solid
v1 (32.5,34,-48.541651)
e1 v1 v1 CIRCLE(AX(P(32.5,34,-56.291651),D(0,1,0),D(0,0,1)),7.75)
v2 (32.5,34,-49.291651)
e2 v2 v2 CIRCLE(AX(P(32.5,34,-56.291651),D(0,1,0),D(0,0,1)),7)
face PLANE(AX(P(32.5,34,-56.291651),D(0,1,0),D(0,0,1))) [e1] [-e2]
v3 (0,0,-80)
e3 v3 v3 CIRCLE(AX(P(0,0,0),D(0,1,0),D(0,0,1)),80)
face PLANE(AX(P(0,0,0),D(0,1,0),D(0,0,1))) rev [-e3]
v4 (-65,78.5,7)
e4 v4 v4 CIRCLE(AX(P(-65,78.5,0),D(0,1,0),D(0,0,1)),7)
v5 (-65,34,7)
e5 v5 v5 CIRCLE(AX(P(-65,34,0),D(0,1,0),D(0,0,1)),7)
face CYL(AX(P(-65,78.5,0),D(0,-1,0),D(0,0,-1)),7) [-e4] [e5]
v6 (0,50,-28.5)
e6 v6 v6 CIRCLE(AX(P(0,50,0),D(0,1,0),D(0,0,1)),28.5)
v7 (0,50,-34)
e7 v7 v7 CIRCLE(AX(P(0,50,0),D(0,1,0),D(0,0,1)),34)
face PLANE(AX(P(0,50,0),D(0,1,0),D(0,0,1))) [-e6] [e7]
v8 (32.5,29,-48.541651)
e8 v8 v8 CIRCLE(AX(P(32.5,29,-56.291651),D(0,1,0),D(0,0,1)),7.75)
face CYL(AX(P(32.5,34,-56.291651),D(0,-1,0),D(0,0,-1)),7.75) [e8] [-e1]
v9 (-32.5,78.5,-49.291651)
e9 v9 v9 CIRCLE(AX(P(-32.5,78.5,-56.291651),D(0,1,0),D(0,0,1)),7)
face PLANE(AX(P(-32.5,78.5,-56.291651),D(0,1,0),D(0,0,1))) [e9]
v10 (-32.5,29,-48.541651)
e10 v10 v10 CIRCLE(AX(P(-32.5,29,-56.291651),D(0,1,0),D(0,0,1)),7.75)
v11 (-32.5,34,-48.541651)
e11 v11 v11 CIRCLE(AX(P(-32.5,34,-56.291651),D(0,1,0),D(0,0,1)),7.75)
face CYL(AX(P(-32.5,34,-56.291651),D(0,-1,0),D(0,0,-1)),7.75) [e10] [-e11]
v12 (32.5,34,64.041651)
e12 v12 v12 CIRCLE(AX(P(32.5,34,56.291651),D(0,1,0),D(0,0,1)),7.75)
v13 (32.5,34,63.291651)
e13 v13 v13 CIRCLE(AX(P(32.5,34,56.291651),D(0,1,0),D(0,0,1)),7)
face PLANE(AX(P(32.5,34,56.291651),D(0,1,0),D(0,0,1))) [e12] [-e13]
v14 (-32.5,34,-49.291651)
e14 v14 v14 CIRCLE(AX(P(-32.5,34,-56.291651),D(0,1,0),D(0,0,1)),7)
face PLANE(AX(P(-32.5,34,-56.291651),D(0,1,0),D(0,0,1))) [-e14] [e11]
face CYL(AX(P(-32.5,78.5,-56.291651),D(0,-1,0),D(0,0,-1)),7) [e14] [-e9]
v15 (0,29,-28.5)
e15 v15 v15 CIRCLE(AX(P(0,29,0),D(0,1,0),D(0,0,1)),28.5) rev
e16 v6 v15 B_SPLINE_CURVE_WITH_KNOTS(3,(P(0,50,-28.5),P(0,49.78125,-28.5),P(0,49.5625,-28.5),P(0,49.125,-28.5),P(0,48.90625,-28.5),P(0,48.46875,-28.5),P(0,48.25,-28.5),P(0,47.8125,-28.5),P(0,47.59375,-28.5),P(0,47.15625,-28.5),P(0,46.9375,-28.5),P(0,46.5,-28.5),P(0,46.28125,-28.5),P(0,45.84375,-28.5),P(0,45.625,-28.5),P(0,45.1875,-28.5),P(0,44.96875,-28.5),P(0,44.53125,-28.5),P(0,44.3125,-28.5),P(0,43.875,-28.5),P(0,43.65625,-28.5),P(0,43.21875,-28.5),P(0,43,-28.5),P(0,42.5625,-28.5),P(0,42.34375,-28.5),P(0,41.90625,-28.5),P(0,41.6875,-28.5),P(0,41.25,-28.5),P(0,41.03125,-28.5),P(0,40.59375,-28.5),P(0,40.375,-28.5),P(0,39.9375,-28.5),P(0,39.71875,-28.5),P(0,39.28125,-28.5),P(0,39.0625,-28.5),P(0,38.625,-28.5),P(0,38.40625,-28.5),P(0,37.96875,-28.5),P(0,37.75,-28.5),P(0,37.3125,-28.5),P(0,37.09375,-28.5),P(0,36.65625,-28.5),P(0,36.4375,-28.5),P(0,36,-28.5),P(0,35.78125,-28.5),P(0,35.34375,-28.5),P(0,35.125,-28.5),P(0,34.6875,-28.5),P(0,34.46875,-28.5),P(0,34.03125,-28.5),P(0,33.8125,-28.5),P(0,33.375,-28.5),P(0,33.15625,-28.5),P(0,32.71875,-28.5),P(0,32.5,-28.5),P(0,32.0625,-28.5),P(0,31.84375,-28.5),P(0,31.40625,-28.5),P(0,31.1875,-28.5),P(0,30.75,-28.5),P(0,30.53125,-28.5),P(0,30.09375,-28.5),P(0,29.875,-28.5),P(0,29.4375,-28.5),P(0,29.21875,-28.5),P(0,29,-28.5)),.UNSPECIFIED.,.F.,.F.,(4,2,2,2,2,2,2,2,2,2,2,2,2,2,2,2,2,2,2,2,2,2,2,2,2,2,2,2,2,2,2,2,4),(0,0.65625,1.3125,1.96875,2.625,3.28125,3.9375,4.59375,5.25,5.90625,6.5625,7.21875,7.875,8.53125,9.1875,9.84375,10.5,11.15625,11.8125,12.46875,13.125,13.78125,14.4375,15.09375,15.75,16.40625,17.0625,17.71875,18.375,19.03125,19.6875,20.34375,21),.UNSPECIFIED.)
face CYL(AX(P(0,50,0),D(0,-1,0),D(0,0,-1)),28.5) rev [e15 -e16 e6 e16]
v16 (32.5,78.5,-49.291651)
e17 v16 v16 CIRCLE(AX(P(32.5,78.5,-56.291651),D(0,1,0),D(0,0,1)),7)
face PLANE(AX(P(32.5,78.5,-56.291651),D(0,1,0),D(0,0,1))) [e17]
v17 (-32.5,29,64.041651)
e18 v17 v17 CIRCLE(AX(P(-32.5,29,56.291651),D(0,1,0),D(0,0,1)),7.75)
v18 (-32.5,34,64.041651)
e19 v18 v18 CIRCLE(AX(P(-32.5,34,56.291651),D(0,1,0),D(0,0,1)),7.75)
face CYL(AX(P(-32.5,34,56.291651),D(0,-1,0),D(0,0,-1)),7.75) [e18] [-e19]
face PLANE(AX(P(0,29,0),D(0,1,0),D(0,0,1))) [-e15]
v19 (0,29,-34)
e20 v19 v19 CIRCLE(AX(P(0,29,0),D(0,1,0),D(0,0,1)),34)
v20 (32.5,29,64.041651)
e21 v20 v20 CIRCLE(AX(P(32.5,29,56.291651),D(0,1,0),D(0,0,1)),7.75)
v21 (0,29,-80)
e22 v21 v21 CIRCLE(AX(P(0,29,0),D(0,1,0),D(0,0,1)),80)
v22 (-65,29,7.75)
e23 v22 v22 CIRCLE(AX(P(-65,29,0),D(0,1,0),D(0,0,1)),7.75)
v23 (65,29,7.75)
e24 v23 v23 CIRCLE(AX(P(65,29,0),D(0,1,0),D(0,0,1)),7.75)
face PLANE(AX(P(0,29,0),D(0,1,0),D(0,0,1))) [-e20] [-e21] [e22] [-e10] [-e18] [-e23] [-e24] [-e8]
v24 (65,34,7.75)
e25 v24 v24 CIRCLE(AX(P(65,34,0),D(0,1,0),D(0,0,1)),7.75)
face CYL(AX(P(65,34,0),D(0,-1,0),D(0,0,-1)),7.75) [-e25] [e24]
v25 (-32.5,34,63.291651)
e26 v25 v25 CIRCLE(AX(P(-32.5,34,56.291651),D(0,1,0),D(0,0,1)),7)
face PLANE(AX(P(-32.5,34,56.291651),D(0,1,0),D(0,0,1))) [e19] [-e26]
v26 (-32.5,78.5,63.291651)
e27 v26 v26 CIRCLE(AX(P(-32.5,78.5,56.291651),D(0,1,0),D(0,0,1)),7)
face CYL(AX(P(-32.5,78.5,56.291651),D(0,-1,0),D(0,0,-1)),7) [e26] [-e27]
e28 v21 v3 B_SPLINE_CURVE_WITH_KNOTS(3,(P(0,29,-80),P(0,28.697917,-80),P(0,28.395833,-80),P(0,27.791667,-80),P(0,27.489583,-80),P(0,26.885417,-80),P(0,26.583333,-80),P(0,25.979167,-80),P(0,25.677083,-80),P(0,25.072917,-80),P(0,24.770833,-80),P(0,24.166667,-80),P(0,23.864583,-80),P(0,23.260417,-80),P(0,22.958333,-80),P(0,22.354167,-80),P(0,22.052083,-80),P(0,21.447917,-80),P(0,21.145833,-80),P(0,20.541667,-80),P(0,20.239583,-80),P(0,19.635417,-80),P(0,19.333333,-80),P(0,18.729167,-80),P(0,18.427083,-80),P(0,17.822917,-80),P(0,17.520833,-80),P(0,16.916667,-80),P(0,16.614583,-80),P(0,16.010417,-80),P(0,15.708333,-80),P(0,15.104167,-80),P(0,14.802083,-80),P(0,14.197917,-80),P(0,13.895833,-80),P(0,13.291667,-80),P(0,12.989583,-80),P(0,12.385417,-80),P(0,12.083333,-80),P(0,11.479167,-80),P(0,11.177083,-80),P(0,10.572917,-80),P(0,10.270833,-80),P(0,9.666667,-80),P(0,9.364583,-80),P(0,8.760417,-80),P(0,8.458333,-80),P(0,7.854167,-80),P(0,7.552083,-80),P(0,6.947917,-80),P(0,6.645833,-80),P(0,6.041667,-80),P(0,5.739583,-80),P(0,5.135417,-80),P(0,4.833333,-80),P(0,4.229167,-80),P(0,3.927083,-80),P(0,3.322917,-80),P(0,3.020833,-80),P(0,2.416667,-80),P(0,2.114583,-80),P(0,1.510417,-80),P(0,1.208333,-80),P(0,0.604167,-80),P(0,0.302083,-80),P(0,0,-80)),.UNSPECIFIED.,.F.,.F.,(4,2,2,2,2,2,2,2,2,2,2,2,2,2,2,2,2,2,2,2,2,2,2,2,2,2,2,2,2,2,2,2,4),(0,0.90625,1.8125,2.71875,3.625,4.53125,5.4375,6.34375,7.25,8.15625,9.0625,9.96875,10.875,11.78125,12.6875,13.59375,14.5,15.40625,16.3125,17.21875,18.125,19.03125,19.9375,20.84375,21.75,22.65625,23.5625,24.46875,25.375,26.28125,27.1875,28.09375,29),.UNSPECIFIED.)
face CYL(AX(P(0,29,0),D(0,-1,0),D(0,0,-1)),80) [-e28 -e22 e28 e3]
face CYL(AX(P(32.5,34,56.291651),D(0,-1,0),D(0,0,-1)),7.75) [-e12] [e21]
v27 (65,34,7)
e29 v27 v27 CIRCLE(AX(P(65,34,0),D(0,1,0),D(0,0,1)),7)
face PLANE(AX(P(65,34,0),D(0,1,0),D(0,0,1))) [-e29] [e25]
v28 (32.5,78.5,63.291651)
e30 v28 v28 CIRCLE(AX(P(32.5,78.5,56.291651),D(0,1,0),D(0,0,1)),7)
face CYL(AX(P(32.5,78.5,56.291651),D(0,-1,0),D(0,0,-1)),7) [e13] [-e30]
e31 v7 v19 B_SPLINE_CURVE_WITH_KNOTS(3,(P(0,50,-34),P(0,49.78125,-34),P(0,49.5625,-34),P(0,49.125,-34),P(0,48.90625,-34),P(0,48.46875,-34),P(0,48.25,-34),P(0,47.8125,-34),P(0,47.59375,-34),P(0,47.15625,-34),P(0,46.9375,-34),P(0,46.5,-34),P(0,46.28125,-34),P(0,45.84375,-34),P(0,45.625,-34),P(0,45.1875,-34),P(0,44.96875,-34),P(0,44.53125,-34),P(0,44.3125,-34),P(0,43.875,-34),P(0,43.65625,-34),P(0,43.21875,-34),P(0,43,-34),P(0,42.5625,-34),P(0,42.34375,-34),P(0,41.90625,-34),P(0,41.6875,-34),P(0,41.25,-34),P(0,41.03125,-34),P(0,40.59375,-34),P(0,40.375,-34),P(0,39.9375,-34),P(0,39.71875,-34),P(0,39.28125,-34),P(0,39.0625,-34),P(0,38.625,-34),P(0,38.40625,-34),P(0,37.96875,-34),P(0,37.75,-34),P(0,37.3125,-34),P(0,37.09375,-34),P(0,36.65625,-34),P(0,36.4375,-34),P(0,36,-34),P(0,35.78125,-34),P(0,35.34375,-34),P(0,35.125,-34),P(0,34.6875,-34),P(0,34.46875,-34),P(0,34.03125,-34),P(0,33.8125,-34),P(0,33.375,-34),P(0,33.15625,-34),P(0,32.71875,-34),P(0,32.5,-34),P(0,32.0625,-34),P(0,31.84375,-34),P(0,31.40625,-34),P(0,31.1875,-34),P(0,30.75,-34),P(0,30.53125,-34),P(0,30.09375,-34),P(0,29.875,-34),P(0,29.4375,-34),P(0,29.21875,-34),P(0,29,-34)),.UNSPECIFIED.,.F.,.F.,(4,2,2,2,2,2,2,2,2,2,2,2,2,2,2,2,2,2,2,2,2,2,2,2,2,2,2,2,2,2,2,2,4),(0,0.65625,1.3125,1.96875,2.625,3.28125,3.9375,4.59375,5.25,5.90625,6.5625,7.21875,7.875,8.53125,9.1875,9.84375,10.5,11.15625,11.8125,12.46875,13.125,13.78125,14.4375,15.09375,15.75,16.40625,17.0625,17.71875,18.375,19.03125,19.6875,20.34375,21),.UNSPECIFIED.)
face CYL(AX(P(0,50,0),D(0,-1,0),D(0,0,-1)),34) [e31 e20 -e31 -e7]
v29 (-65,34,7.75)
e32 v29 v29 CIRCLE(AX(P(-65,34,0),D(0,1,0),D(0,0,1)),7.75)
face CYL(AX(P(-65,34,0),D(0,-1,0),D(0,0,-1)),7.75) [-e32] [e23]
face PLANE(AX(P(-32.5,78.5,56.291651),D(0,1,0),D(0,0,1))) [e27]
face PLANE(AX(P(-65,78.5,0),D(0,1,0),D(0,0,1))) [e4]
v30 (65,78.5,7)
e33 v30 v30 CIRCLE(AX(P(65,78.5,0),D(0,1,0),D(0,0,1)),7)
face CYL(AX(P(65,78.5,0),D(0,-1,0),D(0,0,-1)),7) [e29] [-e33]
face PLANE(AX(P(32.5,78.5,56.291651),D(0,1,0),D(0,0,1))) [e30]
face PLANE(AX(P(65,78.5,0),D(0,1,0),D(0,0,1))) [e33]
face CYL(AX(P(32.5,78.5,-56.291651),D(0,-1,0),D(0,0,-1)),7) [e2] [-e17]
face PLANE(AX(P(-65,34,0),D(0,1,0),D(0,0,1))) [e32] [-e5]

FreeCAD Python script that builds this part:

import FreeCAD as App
import Part
import Sketcher

V = App.Vector

doc = App.newDocument("Part")
body = doc.addObject("PartDesign::Body", "Body")

# Sketch on XZ plane
sketch1 = doc.addObject("Sketcher::SketchObject", "Sketch")
body.addObject(sketch1)
sketch1.AttachmentSupport = (doc.XZ_Plane, [""])
sketch1.MapMode = "FlatFace"
sketch1.addGeometry(Part.Circle(V(0, 0, 0), V(0, 0, 1), 80), False)
sketch1.addConstraint(Sketcher.Constraint("Coincident", 0, 3, -1, 1))
sketch1.addConstraint(Sketcher.Constraint("Diameter", 0, 160.0))
pad1 = doc.addObject("PartDesign::Pad", "Pad")
body.addObject(pad1)
pad1.Profile = sketch1
pad1.Length = 29
pad1.Reversed = True

# Sketch on XZ plane
sketch2 = doc.addObject("Sketcher::SketchObject", "Sketch001")
body.addObject(sketch2)
sketch2.AttachmentSupport = (doc.XZ_Plane, [""])
sketch2.MapMode = "FlatFace"
sketch2.AttachmentOffset = App.Placement(V(0, 0, -29), App.Rotation())
sketch2.addGeometry(Part.Circle(V(0, 0, 0), V(0, 0, 1), 34), False)
sketch2.addGeometry(Part.Circle(V(0, 0, 0), V(0, 0, 1), 28), False)
sketch2.addConstraint(Sketcher.Constraint("Coincident", 0, 3, -1, 1))
sketch2.addConstraint(Sketcher.Constraint("Coincident", 1, 3, -1, 1))
sketch2.addConstraint(Sketcher.Constraint("Diameter", 0, 68.0))
sketch2.addConstraint(Sketcher.Constraint("Diameter", 1, 57.0))
pad2 = doc.addObject("PartDesign::Pad", "Pad001")
body.addObject(pad2)
pad2.Profile = sketch2
pad2.Length = 21
pad2.Reversed = True

# Sketch on XZ plane
sketch3 = doc.addObject("Sketcher::SketchObject", "Sketch002")
body.addObject(sketch3)
sketch3.AttachmentSupport = (doc.XZ_Plane, [""])
sketch3.MapMode = "FlatFace"
sketch3.AttachmentOffset = App.Placement(V(0, 0, -29), App.Rotation())
sketch3.addGeometry(Part.Circle(V(65, 0, 0), V(0, 0, 1), 8), False)
sketch3.addGeometry(Part.Circle(V(32, 56, 0), V(0, 0, 1), 8), False)
sketch3.addGeometry(Part.Circle(V(-32, 56, 0), V(0, 0, 1), 8), False)
sketch3.addGeometry(Part.Circle(V(-65, 0, 0), V(0, 0, 1), 8), False)
sketch3.addGeometry(Part.Circle(V(-32, -56, 0), V(0, 0, 1), 8), False)
sketch3.addGeometry(Part.Circle(V(32, -56, 0), V(0, 0, 1), 8), False)
sketch3.addConstraint(Sketcher.Constraint("Equal", 0, 1))
sketch3.addConstraint(Sketcher.Constraint("Equal", 1, 2))
sketch3.addConstraint(Sketcher.Constraint("Equal", 2, 3))
sketch3.addConstraint(Sketcher.Constraint("Equal", 3, 4))
sketch3.addConstraint(Sketcher.Constraint("Equal", 4, 5))
sketch3.addConstraint(Sketcher.Constraint("Symmetric", 0, 3, 3, 3, -1, 1))
sketch3.addConstraint(Sketcher.Constraint("Symmetric", 1, 3, 4, 3, -1, 1))
sketch3.addConstraint(Sketcher.Constraint("Symmetric", 2, 3, 5, 3, -1, 1))
sketch3.addConstraint(Sketcher.Constraint("Symmetric", 1, 3, 2, 3, -2))
sketch3.addConstraint(Sketcher.Constraint("PointOnObject", 0, 3, -1))
sketch3.addConstraint(Sketcher.Constraint("Diameter", 0, 15.5))
sketch3.addConstraint(Sketcher.Constraint("DistanceX", -1, 1, 0, 3, 65.0))
sketch3.addConstraint(Sketcher.Constraint("DistanceX", 2, 3, 1, 3, 65.0))
sketch3.addConstraint(Sketcher.Constraint("DistanceY", -1, 1, 1, 3, 56.291651))
pad3 = doc.addObject("PartDesign::Pad", "Pad002")
body.addObject(pad3)
pad3.Profile = sketch3
pad3.Length = 5
pad3.Reversed = True

# Sketch on XZ plane
sketch4 = doc.addObject("Sketcher::SketchObject", "Sketch003")
body.addObject(sketch4)
sketch4.AttachmentSupport = (doc.XZ_Plane, [""])
sketch4.MapMode = "FlatFace"
sketch4.AttachmentOffset = App.Placement(V(0, 0, -34), App.Rotation())
sketch4.addGeometry(Part.Circle(V(65, 0, 0), V(0, 0, 1), 7), False)
sketch4.addGeometry(Part.Circle(V(32, 56, 0), V(0, 0, 1), 7), False)
sketch4.addGeometry(Part.Circle(V(-32, 56, 0), V(0, 0, 1), 7), False)
sketch4.addGeometry(Part.Circle(V(-65, 0, 0), V(0, 0, 1), 7), False)
sketch4.addGeometry(Part.Circle(V(-32, -56, 0), V(0, 0, 1), 7), False)
sketch4.addGeometry(Part.Circle(V(32, -56, 0), V(0, 0, 1), 7), False)
sketch4.addConstraint(Sketcher.Constraint("Equal", 0, 1))
sketch4.addConstraint(Sketcher.Constraint("Equal", 1, 2))
sketch4.addConstraint(Sketcher.Constraint("Equal", 2, 3))
sketch4.addConstraint(Sketcher.Constraint("Equal", 3, 4))
sketch4.addConstraint(Sketcher.Constraint("Equal", 4, 5))
sketch4.addConstraint(Sketcher.Constraint("Symmetric", 0, 3, 3, 3, -1, 1))
sketch4.addConstraint(Sketcher.Constraint("Symmetric", 1, 3, 4, 3, -1, 1))
sketch4.addConstraint(Sketcher.Constraint("Symmetric", 2, 3, 5, 3, -1, 1))
sketch4.addConstraint(Sketcher.Constraint("Symmetric", 1, 3, 2, 3, -2))
sketch4.addConstraint(Sketcher.Constraint("PointOnObject", 0, 3, -1))
sketch4.addConstraint(Sketcher.Constraint("Diameter", 0, 14.0))
sketch4.addConstraint(Sketcher.Constraint("DistanceX", -1, 1, 0, 3, 65.0))
sketch4.addConstraint(Sketcher.Constraint("DistanceX", 2, 3, 1, 3, 65.0))
sketch4.addConstraint(Sketcher.Constraint("DistanceY", -1, 1, 1, 3, 56.291651))
pad4 = doc.addObject("PartDesign::Pad", "Pad003")
body.addObject(pad4)
pad4.Profile = sketch4
pad4.Length = 44.5
pad4.Reversed = True

doc.recompute()
